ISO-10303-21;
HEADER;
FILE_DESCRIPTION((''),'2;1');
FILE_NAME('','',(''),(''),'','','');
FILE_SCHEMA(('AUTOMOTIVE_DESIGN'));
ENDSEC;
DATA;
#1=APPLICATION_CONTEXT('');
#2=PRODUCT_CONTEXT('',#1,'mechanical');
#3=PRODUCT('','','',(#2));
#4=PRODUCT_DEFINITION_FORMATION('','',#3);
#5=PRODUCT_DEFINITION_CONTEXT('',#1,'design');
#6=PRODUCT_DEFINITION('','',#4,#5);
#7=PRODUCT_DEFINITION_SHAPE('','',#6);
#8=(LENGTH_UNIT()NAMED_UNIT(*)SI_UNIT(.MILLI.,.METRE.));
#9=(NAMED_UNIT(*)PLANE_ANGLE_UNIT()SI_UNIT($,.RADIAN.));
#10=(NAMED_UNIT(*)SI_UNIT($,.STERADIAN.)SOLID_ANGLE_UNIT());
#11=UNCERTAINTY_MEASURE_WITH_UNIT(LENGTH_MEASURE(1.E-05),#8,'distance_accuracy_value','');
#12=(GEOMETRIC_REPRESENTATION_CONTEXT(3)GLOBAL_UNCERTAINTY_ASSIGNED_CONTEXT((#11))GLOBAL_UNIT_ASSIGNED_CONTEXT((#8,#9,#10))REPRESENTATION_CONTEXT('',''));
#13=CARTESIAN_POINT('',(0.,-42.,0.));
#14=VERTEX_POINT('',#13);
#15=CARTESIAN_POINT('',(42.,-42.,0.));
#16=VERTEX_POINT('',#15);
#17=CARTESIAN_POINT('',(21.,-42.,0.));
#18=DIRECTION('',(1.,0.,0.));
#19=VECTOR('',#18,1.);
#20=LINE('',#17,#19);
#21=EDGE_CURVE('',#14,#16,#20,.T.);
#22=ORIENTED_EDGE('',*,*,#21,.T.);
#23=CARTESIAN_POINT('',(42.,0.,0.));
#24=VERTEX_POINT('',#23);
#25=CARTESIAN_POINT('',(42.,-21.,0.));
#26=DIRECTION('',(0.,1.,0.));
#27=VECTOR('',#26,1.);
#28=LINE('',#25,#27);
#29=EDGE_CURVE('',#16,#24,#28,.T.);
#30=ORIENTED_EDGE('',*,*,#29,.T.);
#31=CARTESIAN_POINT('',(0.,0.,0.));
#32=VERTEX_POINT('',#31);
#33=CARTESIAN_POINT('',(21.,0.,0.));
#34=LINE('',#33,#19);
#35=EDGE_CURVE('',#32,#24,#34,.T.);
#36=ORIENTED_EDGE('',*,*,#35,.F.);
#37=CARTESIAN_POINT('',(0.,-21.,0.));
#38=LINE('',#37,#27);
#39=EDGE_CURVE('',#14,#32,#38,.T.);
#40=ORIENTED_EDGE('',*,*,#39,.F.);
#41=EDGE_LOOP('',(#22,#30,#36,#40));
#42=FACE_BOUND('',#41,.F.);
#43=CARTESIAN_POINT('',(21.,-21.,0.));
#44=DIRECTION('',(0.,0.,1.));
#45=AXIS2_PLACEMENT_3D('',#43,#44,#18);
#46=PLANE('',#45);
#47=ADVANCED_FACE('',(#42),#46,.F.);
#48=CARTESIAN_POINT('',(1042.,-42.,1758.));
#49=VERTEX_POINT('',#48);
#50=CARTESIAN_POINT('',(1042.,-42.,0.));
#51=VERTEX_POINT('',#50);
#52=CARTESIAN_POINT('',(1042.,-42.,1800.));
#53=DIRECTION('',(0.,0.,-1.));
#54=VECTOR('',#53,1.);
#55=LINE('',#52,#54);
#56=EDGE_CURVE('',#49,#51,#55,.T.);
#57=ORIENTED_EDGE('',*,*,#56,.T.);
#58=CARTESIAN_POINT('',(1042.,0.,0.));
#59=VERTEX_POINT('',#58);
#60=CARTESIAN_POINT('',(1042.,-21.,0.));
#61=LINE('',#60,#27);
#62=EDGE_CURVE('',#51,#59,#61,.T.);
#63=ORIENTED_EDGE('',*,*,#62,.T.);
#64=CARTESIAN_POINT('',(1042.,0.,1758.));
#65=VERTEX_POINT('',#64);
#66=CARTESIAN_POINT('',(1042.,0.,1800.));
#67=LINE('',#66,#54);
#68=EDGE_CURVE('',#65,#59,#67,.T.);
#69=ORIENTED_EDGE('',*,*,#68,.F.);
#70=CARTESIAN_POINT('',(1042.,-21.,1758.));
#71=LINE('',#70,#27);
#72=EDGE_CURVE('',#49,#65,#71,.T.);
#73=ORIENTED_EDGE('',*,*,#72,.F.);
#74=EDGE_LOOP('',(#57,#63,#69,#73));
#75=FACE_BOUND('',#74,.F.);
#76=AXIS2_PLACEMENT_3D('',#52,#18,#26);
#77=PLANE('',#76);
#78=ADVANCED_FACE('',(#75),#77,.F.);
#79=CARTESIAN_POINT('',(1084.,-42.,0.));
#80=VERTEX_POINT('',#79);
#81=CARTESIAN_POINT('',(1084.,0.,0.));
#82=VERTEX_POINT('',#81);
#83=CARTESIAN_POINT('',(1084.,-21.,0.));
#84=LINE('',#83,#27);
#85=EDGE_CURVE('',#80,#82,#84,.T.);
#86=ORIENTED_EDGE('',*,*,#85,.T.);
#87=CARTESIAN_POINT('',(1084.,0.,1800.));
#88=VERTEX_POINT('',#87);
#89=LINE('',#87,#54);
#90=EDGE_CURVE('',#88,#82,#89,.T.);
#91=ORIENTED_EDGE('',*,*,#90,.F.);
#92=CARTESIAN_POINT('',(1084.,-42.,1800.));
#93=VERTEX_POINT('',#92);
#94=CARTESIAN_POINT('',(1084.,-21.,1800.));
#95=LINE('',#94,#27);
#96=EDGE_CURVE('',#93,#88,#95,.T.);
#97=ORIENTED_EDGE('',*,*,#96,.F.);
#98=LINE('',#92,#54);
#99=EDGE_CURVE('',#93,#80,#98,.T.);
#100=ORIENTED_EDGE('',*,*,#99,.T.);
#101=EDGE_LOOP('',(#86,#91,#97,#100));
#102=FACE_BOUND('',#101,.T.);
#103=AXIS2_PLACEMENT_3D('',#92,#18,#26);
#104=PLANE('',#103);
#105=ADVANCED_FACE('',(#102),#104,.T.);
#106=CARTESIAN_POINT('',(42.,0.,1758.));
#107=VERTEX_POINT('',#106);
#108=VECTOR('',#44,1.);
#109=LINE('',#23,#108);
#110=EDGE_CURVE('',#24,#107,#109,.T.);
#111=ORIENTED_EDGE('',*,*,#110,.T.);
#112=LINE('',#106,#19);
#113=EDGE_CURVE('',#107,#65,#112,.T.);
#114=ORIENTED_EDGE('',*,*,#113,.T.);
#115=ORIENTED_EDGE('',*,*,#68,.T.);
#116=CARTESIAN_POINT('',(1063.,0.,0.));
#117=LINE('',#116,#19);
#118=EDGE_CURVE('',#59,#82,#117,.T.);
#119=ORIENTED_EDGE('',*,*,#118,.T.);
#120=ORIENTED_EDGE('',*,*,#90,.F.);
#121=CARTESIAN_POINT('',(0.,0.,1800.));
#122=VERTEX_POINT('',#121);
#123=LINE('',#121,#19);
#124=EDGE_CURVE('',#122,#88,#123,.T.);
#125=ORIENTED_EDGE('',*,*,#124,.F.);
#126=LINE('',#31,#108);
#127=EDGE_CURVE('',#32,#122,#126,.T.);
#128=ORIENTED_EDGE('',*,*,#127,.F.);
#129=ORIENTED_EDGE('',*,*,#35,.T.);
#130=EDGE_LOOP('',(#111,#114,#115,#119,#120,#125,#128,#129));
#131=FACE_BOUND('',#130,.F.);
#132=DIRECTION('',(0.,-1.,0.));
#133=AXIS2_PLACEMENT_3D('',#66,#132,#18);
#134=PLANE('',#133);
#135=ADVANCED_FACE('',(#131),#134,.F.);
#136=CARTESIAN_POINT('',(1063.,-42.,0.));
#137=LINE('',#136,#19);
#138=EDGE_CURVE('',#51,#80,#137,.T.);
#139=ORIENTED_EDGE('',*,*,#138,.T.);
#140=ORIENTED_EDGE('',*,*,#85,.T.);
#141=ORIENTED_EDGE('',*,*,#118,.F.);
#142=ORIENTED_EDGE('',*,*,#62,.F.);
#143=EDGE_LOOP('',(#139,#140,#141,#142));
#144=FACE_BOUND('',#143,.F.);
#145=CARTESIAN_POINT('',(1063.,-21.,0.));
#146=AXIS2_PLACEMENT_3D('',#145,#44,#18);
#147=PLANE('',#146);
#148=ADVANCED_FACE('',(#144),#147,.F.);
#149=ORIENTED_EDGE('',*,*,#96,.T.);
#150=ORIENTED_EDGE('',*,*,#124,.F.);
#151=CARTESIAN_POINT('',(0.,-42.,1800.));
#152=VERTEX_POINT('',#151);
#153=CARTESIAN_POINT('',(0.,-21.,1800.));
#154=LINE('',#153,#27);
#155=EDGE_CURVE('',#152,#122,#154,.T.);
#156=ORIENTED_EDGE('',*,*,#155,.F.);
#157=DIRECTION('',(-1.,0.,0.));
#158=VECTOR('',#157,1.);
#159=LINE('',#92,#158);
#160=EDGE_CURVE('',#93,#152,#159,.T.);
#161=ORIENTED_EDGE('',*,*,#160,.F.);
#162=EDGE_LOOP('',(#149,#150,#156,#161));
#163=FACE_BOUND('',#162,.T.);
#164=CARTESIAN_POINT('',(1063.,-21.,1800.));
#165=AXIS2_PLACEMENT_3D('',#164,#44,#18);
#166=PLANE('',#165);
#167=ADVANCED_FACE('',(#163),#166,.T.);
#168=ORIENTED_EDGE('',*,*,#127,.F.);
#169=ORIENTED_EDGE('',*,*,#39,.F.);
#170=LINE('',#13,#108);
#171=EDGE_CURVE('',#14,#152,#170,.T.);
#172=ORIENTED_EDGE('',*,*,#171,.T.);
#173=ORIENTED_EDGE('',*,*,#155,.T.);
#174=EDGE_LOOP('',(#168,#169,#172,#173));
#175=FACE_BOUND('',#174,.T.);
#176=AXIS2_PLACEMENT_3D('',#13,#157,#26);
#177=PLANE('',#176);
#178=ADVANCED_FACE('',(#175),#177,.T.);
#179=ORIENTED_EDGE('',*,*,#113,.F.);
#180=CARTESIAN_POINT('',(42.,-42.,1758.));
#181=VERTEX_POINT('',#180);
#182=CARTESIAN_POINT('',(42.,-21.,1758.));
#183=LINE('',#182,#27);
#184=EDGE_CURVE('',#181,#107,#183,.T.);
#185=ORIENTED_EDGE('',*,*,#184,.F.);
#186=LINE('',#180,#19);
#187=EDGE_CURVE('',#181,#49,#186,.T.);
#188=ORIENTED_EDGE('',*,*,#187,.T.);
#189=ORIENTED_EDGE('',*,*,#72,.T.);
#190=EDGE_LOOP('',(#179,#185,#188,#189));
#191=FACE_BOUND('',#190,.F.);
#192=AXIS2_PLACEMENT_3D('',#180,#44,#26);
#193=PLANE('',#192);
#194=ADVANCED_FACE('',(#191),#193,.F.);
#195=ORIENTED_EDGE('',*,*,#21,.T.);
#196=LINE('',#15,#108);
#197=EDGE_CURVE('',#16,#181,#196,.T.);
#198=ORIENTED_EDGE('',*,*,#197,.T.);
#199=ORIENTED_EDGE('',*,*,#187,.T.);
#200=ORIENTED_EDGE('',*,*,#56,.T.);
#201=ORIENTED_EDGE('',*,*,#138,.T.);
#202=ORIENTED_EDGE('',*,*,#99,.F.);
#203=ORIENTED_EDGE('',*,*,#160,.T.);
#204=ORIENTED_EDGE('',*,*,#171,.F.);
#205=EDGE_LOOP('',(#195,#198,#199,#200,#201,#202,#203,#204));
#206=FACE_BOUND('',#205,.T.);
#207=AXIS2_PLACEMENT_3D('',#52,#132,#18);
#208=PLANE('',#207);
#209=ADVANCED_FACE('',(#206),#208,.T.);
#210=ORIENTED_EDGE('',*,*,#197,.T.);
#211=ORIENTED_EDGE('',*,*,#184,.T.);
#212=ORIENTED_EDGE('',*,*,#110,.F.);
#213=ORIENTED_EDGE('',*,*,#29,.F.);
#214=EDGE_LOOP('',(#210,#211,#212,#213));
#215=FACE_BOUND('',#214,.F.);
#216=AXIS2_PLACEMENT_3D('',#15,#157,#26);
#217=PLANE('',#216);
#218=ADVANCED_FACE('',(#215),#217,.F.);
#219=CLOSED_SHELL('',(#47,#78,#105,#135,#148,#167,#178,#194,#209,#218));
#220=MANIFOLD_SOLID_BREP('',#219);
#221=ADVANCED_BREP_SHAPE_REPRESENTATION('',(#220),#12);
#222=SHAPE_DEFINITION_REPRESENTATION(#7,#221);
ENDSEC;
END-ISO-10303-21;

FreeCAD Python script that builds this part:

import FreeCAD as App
import Part
import Sketcher


def add_polygon(sketch, points):
    """Adds a closed chain of lines whose ends are joined by coincident constraints."""
    first, n = sketch.GeometryCount, len(points)
    for a, b in zip(points, points[1:] + points[:1]):
        sketch.addGeometry(Part.LineSegment(App.Vector(*a, 0), App.Vector(*b, 0)), False)
    for i in range(n):
        sketch.addConstraint(Sketcher.Constraint("Coincident", first + i, 2, first + (i + 1) % n, 1))

doc = App.newDocument("Part")
body = doc.addObject("PartDesign::Body", "Body")

sketch1 = body.newObject("Sketcher::SketchObject", "Sketch")
sketch1.AttachmentSupport = (doc.getObject("XY_Plane"), [""])
sketch1.MapMode = "FlatFace"
add_polygon(sketch1, [(0, 0), (0, -42), (42, -42), (42, 0)])
sketch1.addConstraint(Sketcher.Constraint("Vertical", 0))
sketch1.addConstraint(Sketcher.Constraint("Horizontal", 1))
sketch1.addConstraint(Sketcher.Constraint("Vertical", 2))
sketch1.addConstraint(Sketcher.Constraint("Horizontal", 3))
sketch1.addConstraint(Sketcher.Constraint("Coincident", 3, 2, -1, 1))
sketch1.addConstraint(Sketcher.Constraint("Equal", 3, 0))
sketch1.addConstraint(Sketcher.Constraint("DistanceX", 1, 1, 1, 2, 42.0))
pad1 = body.newObject("PartDesign::Pad", "Pad")
pad1.Profile = sketch1
pad1.Length = 1800

sketch2 = body.newObject("Sketcher::SketchObject", "Sketch001")
sketch2.AttachmentSupport = (doc.getObject("YZ_Plane"), [""])
sketch2.MapMode = "FlatFace"
sketch2.AttachmentOffset = App.Placement(App.Vector(0, 0, 42), App.Rotation())
add_polygon(sketch2, [(-42, 1800), (-42, 1758), (0, 1758), (0, 1800)])
sketch2.addConstraint(Sketcher.Constraint("Vertical", 0))
sketch2.addConstraint(Sketcher.Constraint("Horizontal", 1))
sketch2.addConstraint(Sketcher.Constraint("Vertical", 2))
sketch2.addConstraint(Sketcher.Constraint("Horizontal", 3))
sketch2.addConstraint(Sketcher.Constraint("PointOnObject", 1, 2, -2))
sketch2.addConstraint(Sketcher.Constraint("Equal", 3, 0))
sketch2.addConstraint(Sketcher.Constraint("DistanceX", 1, 1, 1, 2, 42.0))
sketch2.addConstraint(Sketcher.Constraint("DistanceY", -1, 1, 0, 2, 1758.0))
pad2 = body.newObject("PartDesign::Pad", "Pad001")
pad2.Profile = sketch2
pad2.Length = 1000

sketch3 = body.newObject("Sketcher::SketchObject", "Sketch002")
sketch3.AttachmentSupport = (doc.getObject("XY_Plane"), [""])
sketch3.MapMode = "FlatFace"
sketch3.AttachmentOffset = App.Placement(App.Vector(0, 0, 1800), App.Rotation())
add_polygon(sketch3, [(1042, 0), (1042, -42), (1084, -42), (1084, 0)])
sketch3.addConstraint(Sketcher.Constraint("Vertical", 0))
sketch3.addConstraint(Sketcher.Constraint("Horizontal", 1))
sketch3.addConstraint(Sketcher.Constraint("Vertical", 2))
sketch3.addConstraint(Sketcher.Constraint("Horizontal", 3))
sketch3.addConstraint(Sketcher.Constraint("PointOnObject", 2, 2, -1))
sketch3.addConstraint(Sketcher.Constraint("Equal", 3, 0))
sketch3.addConstraint(Sketcher.Constraint("DistanceX", 1, 1, 1, 2, 42.0))
sketch3.addConstraint(Sketcher.Constraint("DistanceX", -1, 1, 0, 2, 1042.0))
pad3 = body.newObject("PartDesign::Pad", "Pad002")
pad3.Profile = sketch3
pad3.Length = 1800
pad3.Reversed = True

doc.recompute()
